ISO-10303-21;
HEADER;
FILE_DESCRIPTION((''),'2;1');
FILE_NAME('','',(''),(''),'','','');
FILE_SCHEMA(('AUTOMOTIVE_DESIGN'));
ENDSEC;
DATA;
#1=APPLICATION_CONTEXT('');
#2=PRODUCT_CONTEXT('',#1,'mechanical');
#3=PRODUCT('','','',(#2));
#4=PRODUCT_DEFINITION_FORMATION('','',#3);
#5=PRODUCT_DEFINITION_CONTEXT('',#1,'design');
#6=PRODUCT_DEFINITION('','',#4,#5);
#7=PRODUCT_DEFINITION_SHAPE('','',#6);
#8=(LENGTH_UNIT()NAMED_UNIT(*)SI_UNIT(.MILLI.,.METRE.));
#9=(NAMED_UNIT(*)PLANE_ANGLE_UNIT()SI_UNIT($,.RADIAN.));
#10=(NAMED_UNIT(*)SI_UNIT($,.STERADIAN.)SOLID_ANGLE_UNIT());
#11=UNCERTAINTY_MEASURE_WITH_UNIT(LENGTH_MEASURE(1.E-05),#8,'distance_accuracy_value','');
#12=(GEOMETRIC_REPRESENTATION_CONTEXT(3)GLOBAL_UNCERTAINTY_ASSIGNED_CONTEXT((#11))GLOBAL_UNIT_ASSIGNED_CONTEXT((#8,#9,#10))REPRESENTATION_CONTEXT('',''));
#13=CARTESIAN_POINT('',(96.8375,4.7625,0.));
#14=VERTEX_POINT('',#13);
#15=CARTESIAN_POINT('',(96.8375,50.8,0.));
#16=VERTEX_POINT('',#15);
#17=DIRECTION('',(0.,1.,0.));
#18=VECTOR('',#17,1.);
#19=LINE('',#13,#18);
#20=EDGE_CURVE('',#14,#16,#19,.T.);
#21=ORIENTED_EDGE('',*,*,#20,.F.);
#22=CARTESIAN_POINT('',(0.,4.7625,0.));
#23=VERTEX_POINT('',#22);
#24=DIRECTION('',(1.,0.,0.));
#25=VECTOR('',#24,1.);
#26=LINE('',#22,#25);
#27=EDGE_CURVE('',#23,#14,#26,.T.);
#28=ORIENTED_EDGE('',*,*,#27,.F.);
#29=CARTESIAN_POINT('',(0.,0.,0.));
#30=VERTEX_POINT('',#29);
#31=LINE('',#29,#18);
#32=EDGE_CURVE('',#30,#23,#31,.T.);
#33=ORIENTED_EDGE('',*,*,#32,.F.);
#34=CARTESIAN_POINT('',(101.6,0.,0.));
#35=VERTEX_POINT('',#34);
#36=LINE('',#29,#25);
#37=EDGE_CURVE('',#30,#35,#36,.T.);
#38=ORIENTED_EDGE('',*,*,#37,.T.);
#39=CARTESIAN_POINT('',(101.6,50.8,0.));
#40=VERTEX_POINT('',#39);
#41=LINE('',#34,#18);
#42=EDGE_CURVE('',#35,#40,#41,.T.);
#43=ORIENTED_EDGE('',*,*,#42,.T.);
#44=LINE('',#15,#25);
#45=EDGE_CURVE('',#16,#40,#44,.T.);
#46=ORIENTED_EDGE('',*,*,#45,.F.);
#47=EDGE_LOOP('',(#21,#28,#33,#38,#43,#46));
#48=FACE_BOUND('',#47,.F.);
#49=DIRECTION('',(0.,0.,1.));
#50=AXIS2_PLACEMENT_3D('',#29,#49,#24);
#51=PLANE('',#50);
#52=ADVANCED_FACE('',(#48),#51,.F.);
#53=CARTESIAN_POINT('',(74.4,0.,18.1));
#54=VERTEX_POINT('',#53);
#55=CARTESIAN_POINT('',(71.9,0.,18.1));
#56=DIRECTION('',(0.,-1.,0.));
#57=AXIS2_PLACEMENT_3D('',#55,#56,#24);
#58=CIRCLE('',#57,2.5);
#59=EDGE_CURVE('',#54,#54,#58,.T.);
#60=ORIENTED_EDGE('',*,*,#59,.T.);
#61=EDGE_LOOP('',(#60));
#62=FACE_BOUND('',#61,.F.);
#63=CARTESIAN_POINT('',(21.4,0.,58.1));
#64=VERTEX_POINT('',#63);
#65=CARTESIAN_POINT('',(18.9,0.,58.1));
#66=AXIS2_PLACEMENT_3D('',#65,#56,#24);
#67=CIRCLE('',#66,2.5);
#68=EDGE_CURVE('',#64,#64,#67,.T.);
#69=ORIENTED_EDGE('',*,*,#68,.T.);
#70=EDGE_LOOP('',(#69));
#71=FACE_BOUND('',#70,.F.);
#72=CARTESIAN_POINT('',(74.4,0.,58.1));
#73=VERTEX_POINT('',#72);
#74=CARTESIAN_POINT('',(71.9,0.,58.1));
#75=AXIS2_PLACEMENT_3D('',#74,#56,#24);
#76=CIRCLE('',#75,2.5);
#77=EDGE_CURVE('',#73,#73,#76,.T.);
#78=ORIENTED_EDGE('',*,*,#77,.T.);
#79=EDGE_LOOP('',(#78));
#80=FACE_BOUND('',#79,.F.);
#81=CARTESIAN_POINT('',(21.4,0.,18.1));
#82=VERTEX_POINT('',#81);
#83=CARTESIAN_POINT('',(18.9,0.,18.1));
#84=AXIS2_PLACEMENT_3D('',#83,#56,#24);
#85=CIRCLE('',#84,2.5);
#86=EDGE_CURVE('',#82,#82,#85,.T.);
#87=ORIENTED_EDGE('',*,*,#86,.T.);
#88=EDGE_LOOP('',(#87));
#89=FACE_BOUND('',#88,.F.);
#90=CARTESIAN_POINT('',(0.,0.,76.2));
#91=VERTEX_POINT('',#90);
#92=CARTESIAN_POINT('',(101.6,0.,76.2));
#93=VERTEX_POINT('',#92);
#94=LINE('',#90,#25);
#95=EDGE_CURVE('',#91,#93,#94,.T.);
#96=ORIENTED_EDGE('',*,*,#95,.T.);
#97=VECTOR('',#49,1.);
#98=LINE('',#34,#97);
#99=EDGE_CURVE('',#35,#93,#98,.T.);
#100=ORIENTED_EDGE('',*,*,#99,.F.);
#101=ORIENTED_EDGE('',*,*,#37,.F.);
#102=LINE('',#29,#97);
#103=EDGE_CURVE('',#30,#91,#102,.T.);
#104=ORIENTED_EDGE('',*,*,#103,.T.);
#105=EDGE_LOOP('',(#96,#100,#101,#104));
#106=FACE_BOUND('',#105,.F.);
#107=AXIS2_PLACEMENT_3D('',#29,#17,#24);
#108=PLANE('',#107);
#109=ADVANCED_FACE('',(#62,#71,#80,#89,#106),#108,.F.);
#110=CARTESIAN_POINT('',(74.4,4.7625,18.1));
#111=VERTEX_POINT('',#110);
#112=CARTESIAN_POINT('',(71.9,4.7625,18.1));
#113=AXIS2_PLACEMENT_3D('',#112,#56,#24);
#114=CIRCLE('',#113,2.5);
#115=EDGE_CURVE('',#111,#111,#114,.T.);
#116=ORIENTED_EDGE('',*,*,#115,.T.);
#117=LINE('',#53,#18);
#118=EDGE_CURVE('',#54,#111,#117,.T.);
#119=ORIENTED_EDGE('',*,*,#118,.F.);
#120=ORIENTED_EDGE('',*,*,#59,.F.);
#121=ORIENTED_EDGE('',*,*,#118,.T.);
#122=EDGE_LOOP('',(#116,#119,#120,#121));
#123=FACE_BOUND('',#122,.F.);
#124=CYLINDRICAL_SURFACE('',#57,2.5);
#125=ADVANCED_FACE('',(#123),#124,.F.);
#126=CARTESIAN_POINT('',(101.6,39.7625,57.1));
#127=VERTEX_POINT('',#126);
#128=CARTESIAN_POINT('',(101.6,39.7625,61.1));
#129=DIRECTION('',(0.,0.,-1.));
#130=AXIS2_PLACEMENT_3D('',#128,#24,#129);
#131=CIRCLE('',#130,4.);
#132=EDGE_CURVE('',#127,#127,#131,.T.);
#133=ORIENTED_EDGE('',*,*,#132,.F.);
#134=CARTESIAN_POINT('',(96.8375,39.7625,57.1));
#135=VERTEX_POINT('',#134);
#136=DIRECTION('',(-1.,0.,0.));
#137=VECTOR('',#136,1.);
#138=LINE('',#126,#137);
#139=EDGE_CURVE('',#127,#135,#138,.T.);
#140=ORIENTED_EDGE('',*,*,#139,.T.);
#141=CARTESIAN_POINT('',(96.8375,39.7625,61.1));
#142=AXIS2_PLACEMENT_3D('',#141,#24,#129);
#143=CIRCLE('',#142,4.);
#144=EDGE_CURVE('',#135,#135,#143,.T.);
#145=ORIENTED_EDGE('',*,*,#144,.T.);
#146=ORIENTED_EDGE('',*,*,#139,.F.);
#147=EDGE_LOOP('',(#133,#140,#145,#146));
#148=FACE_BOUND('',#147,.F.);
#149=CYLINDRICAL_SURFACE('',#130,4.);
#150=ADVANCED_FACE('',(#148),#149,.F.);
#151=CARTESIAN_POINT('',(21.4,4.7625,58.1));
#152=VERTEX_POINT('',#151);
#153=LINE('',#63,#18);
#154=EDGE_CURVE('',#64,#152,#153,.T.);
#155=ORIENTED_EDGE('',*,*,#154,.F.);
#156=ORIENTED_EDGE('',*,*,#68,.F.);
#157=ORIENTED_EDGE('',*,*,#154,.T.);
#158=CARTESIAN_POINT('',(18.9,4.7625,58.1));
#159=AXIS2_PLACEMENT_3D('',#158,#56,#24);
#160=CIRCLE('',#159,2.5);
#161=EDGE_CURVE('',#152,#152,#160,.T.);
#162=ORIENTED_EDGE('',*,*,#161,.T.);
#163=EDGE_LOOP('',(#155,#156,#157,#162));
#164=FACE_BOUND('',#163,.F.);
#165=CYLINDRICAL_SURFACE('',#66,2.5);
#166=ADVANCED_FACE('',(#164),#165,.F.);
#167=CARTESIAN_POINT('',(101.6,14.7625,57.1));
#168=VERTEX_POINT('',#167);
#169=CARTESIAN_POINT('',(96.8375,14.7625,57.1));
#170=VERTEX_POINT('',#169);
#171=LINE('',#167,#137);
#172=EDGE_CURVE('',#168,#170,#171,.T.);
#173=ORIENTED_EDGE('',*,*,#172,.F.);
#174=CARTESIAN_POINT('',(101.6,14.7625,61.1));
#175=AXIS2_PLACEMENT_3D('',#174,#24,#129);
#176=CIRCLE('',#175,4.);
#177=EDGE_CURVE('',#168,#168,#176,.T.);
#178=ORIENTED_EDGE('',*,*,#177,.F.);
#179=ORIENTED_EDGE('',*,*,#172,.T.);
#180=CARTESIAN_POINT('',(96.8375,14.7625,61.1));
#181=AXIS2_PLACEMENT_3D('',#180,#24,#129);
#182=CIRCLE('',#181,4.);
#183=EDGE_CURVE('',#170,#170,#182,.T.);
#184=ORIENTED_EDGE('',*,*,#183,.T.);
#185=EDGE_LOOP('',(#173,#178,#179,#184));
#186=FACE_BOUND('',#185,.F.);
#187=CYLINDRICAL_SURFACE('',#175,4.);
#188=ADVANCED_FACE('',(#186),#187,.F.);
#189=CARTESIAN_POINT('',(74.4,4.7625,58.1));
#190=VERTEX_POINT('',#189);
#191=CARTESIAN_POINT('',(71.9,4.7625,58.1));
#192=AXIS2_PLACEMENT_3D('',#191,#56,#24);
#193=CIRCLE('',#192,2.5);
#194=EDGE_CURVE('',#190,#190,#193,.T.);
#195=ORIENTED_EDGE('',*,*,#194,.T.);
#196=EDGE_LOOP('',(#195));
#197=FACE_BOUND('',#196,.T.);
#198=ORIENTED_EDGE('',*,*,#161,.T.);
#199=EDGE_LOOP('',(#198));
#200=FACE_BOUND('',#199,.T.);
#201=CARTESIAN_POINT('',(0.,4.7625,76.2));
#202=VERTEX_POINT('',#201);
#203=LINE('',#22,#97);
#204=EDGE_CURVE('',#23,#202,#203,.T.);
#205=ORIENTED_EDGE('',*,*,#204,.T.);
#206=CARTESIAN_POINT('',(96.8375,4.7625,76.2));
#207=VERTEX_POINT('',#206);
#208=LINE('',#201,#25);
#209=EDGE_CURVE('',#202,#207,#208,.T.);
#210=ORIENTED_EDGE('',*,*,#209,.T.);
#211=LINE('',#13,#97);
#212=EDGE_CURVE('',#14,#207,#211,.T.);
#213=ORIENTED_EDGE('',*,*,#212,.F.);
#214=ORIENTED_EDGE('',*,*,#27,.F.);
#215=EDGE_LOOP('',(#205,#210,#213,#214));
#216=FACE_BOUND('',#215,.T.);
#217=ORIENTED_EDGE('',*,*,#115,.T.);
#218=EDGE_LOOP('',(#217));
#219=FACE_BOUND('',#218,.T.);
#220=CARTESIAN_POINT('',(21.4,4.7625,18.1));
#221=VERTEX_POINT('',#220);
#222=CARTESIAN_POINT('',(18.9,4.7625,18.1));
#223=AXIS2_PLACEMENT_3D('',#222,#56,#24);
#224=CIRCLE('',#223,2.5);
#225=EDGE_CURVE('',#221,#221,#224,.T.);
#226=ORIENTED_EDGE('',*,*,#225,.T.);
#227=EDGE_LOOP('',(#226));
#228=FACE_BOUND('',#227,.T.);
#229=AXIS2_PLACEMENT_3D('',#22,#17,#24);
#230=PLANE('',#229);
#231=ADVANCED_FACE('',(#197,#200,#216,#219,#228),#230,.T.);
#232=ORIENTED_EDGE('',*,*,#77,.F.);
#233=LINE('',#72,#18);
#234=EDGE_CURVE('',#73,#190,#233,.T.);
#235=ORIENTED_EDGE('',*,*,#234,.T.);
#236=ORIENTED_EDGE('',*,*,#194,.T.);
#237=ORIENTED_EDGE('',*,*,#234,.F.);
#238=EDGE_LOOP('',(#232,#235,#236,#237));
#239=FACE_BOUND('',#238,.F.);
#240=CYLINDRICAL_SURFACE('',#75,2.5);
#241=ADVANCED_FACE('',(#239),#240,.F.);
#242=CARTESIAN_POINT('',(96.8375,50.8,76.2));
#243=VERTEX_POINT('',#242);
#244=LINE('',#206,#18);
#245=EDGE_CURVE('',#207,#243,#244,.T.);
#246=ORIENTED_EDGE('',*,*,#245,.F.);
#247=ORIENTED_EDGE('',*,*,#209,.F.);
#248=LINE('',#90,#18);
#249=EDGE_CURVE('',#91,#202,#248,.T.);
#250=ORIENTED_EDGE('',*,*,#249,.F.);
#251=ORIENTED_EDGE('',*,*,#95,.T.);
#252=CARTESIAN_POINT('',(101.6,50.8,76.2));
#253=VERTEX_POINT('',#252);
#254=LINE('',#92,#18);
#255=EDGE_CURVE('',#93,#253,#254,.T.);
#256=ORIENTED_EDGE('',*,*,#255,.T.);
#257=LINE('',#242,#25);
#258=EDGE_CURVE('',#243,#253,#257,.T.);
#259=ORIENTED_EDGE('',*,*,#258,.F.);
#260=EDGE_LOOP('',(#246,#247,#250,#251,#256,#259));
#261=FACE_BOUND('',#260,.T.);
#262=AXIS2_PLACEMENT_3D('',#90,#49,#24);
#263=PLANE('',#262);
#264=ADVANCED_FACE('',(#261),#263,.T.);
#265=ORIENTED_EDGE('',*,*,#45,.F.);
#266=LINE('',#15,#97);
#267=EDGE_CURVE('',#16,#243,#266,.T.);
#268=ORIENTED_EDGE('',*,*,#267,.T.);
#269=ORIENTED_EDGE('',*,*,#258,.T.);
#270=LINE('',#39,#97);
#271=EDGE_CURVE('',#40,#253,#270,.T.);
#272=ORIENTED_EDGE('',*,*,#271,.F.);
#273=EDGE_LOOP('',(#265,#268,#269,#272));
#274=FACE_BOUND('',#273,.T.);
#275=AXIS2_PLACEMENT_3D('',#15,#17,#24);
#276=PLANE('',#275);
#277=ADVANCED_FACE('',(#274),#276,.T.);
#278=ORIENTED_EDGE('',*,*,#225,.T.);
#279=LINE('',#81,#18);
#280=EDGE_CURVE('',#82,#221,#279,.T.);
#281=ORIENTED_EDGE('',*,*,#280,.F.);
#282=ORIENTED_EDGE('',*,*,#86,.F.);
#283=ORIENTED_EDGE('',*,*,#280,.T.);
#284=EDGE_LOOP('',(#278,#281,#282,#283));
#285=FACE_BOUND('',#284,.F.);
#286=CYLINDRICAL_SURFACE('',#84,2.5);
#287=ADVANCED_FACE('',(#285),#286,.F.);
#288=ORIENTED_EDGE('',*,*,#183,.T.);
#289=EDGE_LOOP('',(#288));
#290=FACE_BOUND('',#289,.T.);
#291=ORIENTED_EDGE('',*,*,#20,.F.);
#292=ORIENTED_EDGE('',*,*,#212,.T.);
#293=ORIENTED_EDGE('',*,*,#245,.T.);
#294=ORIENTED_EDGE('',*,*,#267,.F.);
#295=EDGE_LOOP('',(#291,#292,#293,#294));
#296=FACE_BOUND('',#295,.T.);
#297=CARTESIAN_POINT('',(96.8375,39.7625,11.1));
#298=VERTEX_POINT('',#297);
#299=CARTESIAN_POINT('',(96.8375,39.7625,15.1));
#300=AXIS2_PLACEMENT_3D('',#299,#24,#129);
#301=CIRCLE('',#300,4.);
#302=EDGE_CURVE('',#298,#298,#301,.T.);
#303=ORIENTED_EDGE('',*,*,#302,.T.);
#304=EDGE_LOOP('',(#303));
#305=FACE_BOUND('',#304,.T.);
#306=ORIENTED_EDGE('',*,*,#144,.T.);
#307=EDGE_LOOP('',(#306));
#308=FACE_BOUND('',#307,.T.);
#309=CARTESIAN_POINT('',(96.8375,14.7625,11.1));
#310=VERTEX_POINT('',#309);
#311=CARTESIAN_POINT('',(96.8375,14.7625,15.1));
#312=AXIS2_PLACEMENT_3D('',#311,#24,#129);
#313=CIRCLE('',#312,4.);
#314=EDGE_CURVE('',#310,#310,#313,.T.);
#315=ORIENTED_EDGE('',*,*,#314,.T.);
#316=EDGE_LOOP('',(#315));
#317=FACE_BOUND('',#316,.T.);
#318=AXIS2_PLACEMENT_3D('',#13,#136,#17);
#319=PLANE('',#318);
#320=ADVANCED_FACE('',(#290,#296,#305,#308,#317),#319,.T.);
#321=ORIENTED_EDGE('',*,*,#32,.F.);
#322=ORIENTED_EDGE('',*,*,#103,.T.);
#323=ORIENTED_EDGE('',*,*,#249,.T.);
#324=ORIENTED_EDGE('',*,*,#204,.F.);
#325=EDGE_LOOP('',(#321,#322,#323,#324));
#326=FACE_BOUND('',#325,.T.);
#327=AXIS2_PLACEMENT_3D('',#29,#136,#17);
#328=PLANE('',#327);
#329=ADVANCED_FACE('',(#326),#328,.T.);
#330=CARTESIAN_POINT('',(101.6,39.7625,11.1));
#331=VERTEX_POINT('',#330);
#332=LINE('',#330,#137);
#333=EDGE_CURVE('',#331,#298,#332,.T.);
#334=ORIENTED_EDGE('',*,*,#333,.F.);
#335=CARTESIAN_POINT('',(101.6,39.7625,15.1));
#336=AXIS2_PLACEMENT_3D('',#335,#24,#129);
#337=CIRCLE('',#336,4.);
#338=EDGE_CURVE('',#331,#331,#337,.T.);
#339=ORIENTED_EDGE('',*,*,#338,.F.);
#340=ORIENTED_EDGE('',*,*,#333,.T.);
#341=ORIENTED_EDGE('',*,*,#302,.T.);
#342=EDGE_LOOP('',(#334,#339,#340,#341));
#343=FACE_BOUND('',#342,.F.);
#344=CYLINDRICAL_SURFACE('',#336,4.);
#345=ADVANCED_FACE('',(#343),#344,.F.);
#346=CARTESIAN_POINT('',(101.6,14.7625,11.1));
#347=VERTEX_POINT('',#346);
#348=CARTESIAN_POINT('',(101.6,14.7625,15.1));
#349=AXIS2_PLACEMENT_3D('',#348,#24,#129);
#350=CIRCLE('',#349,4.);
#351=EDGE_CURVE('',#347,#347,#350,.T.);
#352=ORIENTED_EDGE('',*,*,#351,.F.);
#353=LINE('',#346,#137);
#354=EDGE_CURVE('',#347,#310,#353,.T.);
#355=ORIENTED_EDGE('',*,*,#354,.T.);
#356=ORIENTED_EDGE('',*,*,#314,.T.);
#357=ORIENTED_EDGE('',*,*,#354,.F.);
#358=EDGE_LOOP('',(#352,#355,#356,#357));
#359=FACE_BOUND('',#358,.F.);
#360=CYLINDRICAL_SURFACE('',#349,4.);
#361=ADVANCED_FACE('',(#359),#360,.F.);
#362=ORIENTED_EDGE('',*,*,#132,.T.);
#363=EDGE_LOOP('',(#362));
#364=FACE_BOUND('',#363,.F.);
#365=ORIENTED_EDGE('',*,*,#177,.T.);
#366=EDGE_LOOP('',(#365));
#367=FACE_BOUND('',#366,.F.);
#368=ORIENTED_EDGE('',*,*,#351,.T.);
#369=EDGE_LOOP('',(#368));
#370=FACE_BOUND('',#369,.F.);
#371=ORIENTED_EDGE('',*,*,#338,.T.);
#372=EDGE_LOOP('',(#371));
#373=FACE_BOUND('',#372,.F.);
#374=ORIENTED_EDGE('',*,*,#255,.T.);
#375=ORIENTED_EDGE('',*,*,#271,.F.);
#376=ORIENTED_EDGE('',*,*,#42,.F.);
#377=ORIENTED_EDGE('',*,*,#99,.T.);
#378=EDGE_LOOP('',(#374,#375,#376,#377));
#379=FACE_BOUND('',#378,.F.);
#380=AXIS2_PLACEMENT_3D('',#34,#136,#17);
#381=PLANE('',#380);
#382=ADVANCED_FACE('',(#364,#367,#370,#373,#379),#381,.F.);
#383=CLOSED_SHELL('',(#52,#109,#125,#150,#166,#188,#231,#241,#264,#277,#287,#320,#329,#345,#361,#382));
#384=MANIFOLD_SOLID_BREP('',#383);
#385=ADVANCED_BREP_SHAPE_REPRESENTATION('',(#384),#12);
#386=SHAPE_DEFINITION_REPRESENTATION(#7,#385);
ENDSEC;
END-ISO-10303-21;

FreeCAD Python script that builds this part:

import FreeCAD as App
import Part
import Sketcher

V = App.Vector
Q = App.Units.Quantity

doc = App.newDocument("Part")
params = doc.addObject("Spreadsheet::Sheet", "Params")
for row, (alias, value) in enumerate([
    ("sketch1_width", "4 in"),
    ("sketch1_height", "2 in"),
    ("sketch1_width2", "0.1875 in"),
    ("pad1_length", "3 in"),
    ("pocket1_length", "0.1875 in"),
    ("pocket2_length", "1 in"),
], start=1):
    params.set(f"A{row}", alias)
    params.set(f"B{row}", "=" + value)
    params.setAlias(f"B{row}", alias)

body = doc.addObject("PartDesign::Body", "Body")

# Sketch on XY plane
sketch1 = body.newObject("Sketcher::SketchObject", "Sketch")
sketch1.AttachmentSupport = (doc.getObject("XY_Plane"), [""])
sketch1.MapMode = "FlatFace"
sketch1.addGeometry([
    Part.LineSegment(V(0, 4.8, 0), V(0, 0, 0)),  # 0
    Part.LineSegment(V(0, 0, 0), V(101.6, 0, 0)),  # 1
    Part.LineSegment(V(101.6, 0, 0), V(101.6, 50.8, 0)),  # 2
    Part.LineSegment(V(101.6, 50.8, 0), V(96.8, 50.8, 0)),  # 3
    Part.LineSegment(V(96.8, 50.8, 0), V(96.8, 4.8, 0)),  # 4
    Part.LineSegment(V(96.8, 4.8, 0), V(0, 4.8, 0)),  # 5
], False)
sketch1.addConstraint([
    Sketcher.Constraint("Coincident", 0, 2, 1, 1),
    Sketcher.Constraint("Coincident", 1, 2, 2, 1),
    Sketcher.Constraint("Coincident", 2, 2, 3, 1),
    Sketcher.Constraint("Coincident", 3, 2, 4, 1),
    Sketcher.Constraint("Coincident", 4, 2, 5, 1),
    Sketcher.Constraint("Coincident", 5, 2, 0, 1),
    Sketcher.Constraint("Vertical", 0),
    Sketcher.Constraint("Horizontal", 1),
    Sketcher.Constraint("Vertical", 2),
    Sketcher.Constraint("Horizontal", 3),
    Sketcher.Constraint("Vertical", 4),
    Sketcher.Constraint("Horizontal", 5),
    Sketcher.Constraint("Coincident", 0, 2, -1, 1),
    Sketcher.Constraint("Equal", 3, 0),
    Sketcher.Constraint("DistanceX", 1, 1, 1, 2, Q("4 in")),
    Sketcher.Constraint("DistanceY", 2, 1, 2, 2, Q("2 in")),
    Sketcher.Constraint("DistanceX", 3, 2, 3, 1, Q("0.1875 in")),
])
sketch1.setExpression("Constraints[14]", "Params.sketch1_width")
sketch1.setExpression("Constraints[15]", "Params.sketch1_height")
sketch1.setExpression("Constraints[16]", "Params.sketch1_width2")
pad1 = body.newObject("PartDesign::Pad", "Pad")
pad1.Profile = sketch1
pad1.setExpression("Length", "Params.pad1_length")

# Sketch on XZ plane
sketch2 = body.newObject("Sketcher::SketchObject", "Sketch001")
sketch2.AttachmentSupport = (doc.getObject("XZ_Plane"), [""])
sketch2.MapMode = "FlatFace"
sketch2.addGeometry([
    Part.Circle(V(18.9, 58.1, 0), V(0, 0, 1), 2.5),
    Part.Circle(V(18.9, 18.1, 0), V(0, 0, 1), 2.5),
    Part.Circle(V(71.9, 58.1, 0), V(0, 0, 1), 2.5),
    Part.Circle(V(71.9, 18.1, 0), V(0, 0, 1), 2.5),
], False)
sketch2.addConstraint([
    Sketcher.Constraint("Equal", 0, 1),
    Sketcher.Constraint("Equal", 1, 2),
    Sketcher.Constraint("Equal", 2, 3),
    Sketcher.Constraint("Horizontal", 0, 3, 2, 3),
    Sketcher.Constraint("Horizontal", 1, 3, 3, 3),
    Sketcher.Constraint("Vertical", 0, 3, 1, 3),
    Sketcher.Constraint("Vertical", 2, 3, 3, 3),
    Sketcher.Constraint("Diameter", 0, Q("5 mm")),
    Sketcher.Constraint("DistanceY", 1, 3, 0, 3, Q("1.5748 in")),
    Sketcher.Constraint("DistanceX", 0, 3, 2, 3, Q("53 mm")),
    Sketcher.Constraint("DistanceX", -1, 1, 0, 3, Q("0.7441 in")),
    Sketcher.Constraint("DistanceY", -1, 1, 0, 3, Q("2.2874 in")),
])
pocket1 = body.newObject("PartDesign::Pocket", "Pocket")
pocket1.Profile = sketch2
pocket1.setExpression("Length", "Params.pocket1_length")

# Sketch on YZ plane
sketch3 = body.newObject("Sketcher::SketchObject", "Sketch002")
sketch3.AttachmentSupport = (doc.getObject("YZ_Plane"), [""])
sketch3.MapMode = "FlatFace"
sketch3.AttachmentOffset = App.Placement(V(0, 0, 4 * 25.4), App.Rotation())
sketch3.addGeometry([
    Part.Circle(V(14.8, 15.1, 0), V(0, 0, 1), 4),
    Part.Circle(V(39.8, 15.1, 0), V(0, 0, 1), 4),
    Part.Circle(V(14.8, 61.1, 0), V(0, 0, 1), 4),
    Part.Circle(V(39.8, 61.1, 0), V(0, 0, 1), 4),
], False)
sketch3.addConstraint([
    Sketcher.Constraint("Equal", 0, 1),
    Sketcher.Constraint("Equal", 1, 2),
    Sketcher.Constraint("Equal", 2, 3),
    Sketcher.Constraint("Horizontal", 0, 3, 1, 3),
    Sketcher.Constraint("Horizontal", 2, 3, 3, 3),
    Sketcher.Constraint("Vertical", 0, 3, 2, 3),
    Sketcher.Constraint("Vertical", 1, 3, 3, 3),
    Sketcher.Constraint("Diameter", 0, Q("8 mm")),
    Sketcher.Constraint("DistanceX", 0, 3, 1, 3, Q("25 mm")),
    Sketcher.Constraint("DistanceY", 0, 3, 2, 3, Q("46 mm")),
    Sketcher.Constraint("DistanceX", -1, 1, 0, 3, Q("0.5812 in")),
    Sketcher.Constraint("DistanceY", -1, 1, 0, 3, Q("0.5945 in")),
])
pocket2 = body.newObject("PartDesign::Pocket", "Pocket001")
pocket2.Profile = sketch3
pocket2.setExpression("Length", "Params.pocket2_length")

doc.recompute()
